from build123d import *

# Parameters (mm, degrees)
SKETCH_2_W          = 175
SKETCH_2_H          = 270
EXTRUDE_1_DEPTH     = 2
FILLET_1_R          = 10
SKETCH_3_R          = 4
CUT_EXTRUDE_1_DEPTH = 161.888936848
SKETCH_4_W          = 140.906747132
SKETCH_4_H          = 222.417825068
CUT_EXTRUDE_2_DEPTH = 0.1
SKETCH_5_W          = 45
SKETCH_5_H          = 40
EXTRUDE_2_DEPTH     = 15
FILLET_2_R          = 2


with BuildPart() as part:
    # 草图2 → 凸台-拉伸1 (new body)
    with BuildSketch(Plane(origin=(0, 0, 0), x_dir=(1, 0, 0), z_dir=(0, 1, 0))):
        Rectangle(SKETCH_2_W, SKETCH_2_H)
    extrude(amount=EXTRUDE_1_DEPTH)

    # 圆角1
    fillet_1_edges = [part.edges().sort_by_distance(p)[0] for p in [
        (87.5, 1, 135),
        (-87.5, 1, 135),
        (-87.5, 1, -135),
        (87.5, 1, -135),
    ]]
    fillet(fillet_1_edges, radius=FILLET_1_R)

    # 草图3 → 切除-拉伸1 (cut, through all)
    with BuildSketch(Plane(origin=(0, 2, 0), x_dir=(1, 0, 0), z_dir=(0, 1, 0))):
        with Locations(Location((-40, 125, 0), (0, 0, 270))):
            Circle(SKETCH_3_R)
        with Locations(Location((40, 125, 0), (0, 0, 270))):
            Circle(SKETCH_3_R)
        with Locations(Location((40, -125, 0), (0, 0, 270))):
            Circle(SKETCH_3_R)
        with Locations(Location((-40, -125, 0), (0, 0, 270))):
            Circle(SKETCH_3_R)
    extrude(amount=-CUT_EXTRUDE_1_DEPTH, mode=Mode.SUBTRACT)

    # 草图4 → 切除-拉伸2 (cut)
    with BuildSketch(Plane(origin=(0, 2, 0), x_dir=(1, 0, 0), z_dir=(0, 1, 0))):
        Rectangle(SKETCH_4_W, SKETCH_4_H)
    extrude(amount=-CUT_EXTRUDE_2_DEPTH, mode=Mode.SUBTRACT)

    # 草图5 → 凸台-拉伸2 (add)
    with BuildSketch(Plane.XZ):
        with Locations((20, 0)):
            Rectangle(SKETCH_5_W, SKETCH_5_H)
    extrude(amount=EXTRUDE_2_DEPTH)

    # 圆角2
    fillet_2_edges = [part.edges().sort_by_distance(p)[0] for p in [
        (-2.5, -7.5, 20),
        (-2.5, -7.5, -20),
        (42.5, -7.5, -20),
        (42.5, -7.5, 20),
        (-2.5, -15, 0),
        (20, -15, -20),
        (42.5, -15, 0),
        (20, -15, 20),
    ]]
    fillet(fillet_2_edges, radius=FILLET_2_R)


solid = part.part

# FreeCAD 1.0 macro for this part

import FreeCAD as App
import Part
import Sketcher

V = App.Vector


def edges_at(feature, points):
    """Names of the edges that pass closest to the given points."""
    edges = feature.Shape.Edges
    near = lambda p: min(range(len(edges)), key=lambda i: edges[i].distToShape(Part.Vertex(*p))[0])
    return sorted({f"Edge{near(p) + 1}" for p in points})

doc = App.newDocument("Part")
params = doc.addObject("Spreadsheet::Sheet", "Params")
for row, (alias, value) in enumerate([
    ("sketch1_width", "175 mm"),
    ("sketch1_height", "270 mm"),
    ("pad1_length", "2 mm"),
    ("fillet_radius", "10 mm"),
    ("sketch2_diameter", "8 mm"),
    ("pocket2_length", "0.1 mm"),
    ("sketch4_width", "45 mm"),
    ("sketch4_height", "40 mm"),
    ("pad2_length", "15 mm"),
    ("fillet2_radius", "2 mm"),
], start=1):
    params.set(f"A{row}", alias)
    params.set(f"B{row}", "=" + value)
    params.setAlias(f"B{row}", alias)

body = doc.addObject("PartDesign::Body", "Body")

sketch1 = doc.addObject("Sketcher::SketchObject", "Sketch")
body.addObject(sketch1)
sketch1.AttachmentSupport = (doc.XZ_Plane, [""])
sketch1.MapMode = "FlatFace"
sketch1.addGeometry([
    Part.LineSegment(V(-87.5, -135, 0), V(-87.5, 135, 0)),
    Part.LineSegment(V(-87.5, 135, 0), V(87.5, 135, 0)),
    Part.LineSegment(V(87.5, 135, 0), V(87.5, -135, 0)),
    Part.LineSegment(V(87.5, -135, 0), V(-87.5, -135, 0)),
], False)
sketch1.addConstraint([
    Sketcher.Constraint("Coincident", 0, 2, 1, 1),
    Sketcher.Constraint("Coincident", 1, 2, 2, 1),
    Sketcher.Constraint("Coincident", 2, 2, 3, 1),
    Sketcher.Constraint("Coincident", 3, 2, 0, 1),
    Sketcher.Constraint("Vertical", 0),
    Sketcher.Constraint("Horizontal", 1),
    Sketcher.Constraint("Vertical", 2),
    Sketcher.Constraint("Horizontal", 3),
    Sketcher.Constraint("Symmetric", 0, 2, 2, 2, -1, 1),
    Sketcher.Constraint("DistanceX", 1, 1, 1, 2, 175.0),
    Sketcher.Constraint("DistanceY", 0, 1, 0, 2, 270.0),
])
sketch1.setExpression("Constraints[9]", "Params.sketch1_width")
sketch1.setExpression("Constraints[10]", "Params.sketch1_height")
pad1 = doc.addObject("PartDesign::Pad", "Pad")
body.addObject(pad1)
pad1.Profile = sketch1
pad1.setExpression("Length", "Params.pad1_length")
pad1.Reversed = True
doc.recompute()

fillet = doc.addObject("PartDesign::Fillet", "Fillet")
body.addObject(fillet)
fillet.Base = (pad1, edges_at(pad1, [
    (87.5, 1, 135),
    (-87.5, 1, 135),
    (-87.5, 1, -135),
    (87.5, 1, -135),
]))
fillet.setExpression("Radius", "Params.fillet_radius")

sketch2 = doc.addObject("Sketcher::SketchObject", "Sketch001")
body.addObject(sketch2)
sketch2.AttachmentSupport = (doc.XZ_Plane, [""])
sketch2.MapMode = "FlatFace"
sketch2.AttachmentOffset = App.Placement(V(0, 0, -2), App.Rotation())
sketch2.addGeometry([
    Part.Circle(V(-40, -125, 0), V(0, 0, 1), 4),
    Part.Circle(V(40, -125, 0), V(0, 0, 1), 4),
    Part.Circle(V(40, 125, 0), V(0, 0, 1), 4),
    Part.Circle(V(-40, 125, 0), V(0, 0, 1), 4),
], False)
sketch2.addConstraint([
    Sketcher.Constraint("Equal", 0, 1),
    Sketcher.Constraint("Equal", 1, 2),
    Sketcher.Constraint("Equal", 2, 3),
    Sketcher.Constraint("Symmetric", 0, 3, 2, 3, -1, 1),
    Sketcher.Constraint("Symmetric", 1, 3, 3, 3, -1, 1),
    Sketcher.Constraint("Symmetric", 0, 3, 1, 3, -2),
    Sketcher.Constraint("Diameter", 0, 8.0),
    Sketcher.Constraint("DistanceX", 0, 3, -1, 1, 40.0),
    Sketcher.Constraint("DistanceY", 0, 3, -1, 1, 125.0),
])
sketch2.setExpression("Constraints[6]", "Params.sketch2_diameter")
pocket1 = doc.addObject("PartDesign::Pocket", "Pocket")
body.addObject(pocket1)
pocket1.Profile = sketch2
pocket1.Type = "ThroughAll"
pocket1.Reversed = True

sketch3 = doc.addObject("Sketcher::SketchObject", "Sketch002")
body.addObject(sketch3)
sketch3.AttachmentSupport = (doc.XZ_Plane, [""])
sketch3.MapMode = "FlatFace"
sketch3.AttachmentOffset = App.Placement(V(0, 0, -2), App.Rotation())
sketch3.addGeometry([
    Part.LineSegment(V(-70.453374, -111.208913, 0), V(-70.453374, 111.208913, 0)),
    Part.LineSegment(V(-70.453374, 111.208913, 0), V(70.453374, 111.208913, 0)),
    Part.LineSegment(V(70.453374, 111.208913, 0), V(70.453374, -111.208913, 0)),
    Part.LineSegment(V(70.453374, -111.208913, 0), V(-70.453374, -111.208913, 0)),
], False)
sketch3.addConstraint([
    Sketcher.Constraint("Coincident", 0, 2, 1, 1),
    Sketcher.Constraint("Coincident", 1, 2, 2, 1),
    Sketcher.Constraint("Coincident", 2, 2, 3, 1),
    Sketcher.Constraint("Coincident", 3, 2, 0, 1),
    Sketcher.Constraint("Vertical", 0),
    Sketcher.Constraint("Horizontal", 1),
    Sketcher.Constraint("Vertical", 2),
    Sketcher.Constraint("Horizontal", 3),
    Sketcher.Constraint("Symmetric", 0, 2, 2, 2, -1, 1),
    Sketcher.Constraint("DistanceX", 1, 1, 1, 2, 140.906747),
    Sketcher.Constraint("DistanceY", 0, 1, 0, 2, 222.417825),
])
pocket2 = doc.addObject("PartDesign::Pocket", "Pocket001")
body.addObject(pocket2)
pocket2.Profile = sketch3
pocket2.setExpression("Length", "Params.pocket2_length")
pocket2.Reversed = True

sketch4 = doc.addObject("Sketcher::SketchObject", "Sketch003")
body.addObject(sketch4)
sketch4.AttachmentSupport = (doc.XZ_Plane, [""])
sketch4.MapMode = "FlatFace"
sketch4.addGeometry([
    Part.LineSegment(V(-2.5, 20, 0), V(-2.5, -20, 0)),
    Part.LineSegment(V(-2.5, -20, 0), V(42.5, -20, 0)),
    Part.LineSegment(V(42.5, -20, 0), V(42.5, 20, 0)),
    Part.LineSegment(V(42.5, 20, 0), V(-2.5, 20, 0)),
], False)
sketch4.addConstraint([
    Sketcher.Constraint("Coincident", 0, 2, 1, 1),
    Sketcher.Constraint("Coincident", 1, 2, 2, 1),
    Sketcher.Constraint("Coincident", 2, 2, 3, 1),
    Sketcher.Constraint("Coincident", 3, 2, 0, 1),
    Sketcher.Constraint("Vertical", 0),
    Sketcher.Constraint("Horizontal", 1),
    Sketcher.Constraint("Vertical", 2),
    Sketcher.Constraint("Horizontal", 3),
    Sketcher.Constraint("DistanceX", 1, 1, 1, 2, 45.0),
    Sketcher.Constraint("DistanceY", 0, 2, 0, 1, 40.0),
    Sketcher.Constraint("DistanceY", 0, 2, -1, 1, 20.0),
    Sketcher.Constraint("DistanceX", 0, 2, -1, 1, 2.5),
])
sketch4.setExpression("Constraints[8]", "Params.sketch4_width")
sketch4.setExpression("Constraints[9]", "Params.sketch4_height")
pad2 = doc.addObject("PartDesign::Pad", "Pad001")
body.addObject(pad2)
pad2.Profile = sketch4
pad2.setExpression("Length", "Params.pad2_length")
doc.recompute()

fillet2 = doc.addObject("PartDesign::Fillet", "Fillet001")
body.addObject(fillet2)
fillet2.Base = (pad2, edges_at(pad2, [
    (-2.5, -7.5, 20),
    (-2.5, -7.5, -20),
    (42.5, -7.5, -20),
    (42.5, -7.5, 20),
    (-2.5, -15, 0),
    (20, -15, -20),
    (42.5, -15, 0),
    (20, -15, 20),
]))
fillet2.setExpression("Radius", "Params.fillet2_radius")

doc.recompute()
